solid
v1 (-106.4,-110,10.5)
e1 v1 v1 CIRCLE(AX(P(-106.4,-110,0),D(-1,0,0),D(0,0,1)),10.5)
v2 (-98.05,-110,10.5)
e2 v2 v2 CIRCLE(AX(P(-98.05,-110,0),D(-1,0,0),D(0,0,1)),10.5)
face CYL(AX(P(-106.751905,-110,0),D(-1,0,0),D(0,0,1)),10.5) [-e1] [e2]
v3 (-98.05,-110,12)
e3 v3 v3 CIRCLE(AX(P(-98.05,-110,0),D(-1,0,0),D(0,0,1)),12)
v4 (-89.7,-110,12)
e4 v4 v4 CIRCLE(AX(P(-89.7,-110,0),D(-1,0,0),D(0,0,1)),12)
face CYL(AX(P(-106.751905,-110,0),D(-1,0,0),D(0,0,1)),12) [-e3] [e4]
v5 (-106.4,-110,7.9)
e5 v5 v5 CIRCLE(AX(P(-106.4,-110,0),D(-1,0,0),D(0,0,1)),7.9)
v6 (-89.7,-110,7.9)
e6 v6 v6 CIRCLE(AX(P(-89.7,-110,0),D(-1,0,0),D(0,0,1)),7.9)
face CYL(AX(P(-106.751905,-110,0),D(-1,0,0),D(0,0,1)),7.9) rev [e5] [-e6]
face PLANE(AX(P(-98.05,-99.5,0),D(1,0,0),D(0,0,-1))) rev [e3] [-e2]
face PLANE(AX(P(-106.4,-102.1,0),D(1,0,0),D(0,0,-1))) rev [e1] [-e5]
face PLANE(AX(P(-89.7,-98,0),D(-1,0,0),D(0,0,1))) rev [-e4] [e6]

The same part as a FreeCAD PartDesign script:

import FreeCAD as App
import Part
import Sketcher
from FreeCAD import Vector


def add_polygon(sketch, points):
    """Adds a closed chain of lines whose ends are joined by coincident constraints."""
    first, n = sketch.GeometryCount, len(points)
    for a, b in zip(points, points[1:] + points[:1]):
        sketch.addGeometry(Part.LineSegment(App.Vector(*a, 0), App.Vector(*b, 0)), False)
    for i in range(n):
        sketch.addConstraint(Sketcher.Constraint("Coincident", first + i, 2, first + (i + 1) % n, 1))

doc = App.newDocument("Part")
body = doc.addObject("PartDesign::Body", "Body")

# Sketch on XY plane
sketch1 = body.newObject("Sketcher::SketchObject", "Sketch")
sketch1.AttachmentSupport = (doc.getObject("XY_Plane"), [""])
sketch1.MapMode = "FlatFace"
add_polygon(sketch1, [(-89.7, -98), (-98.05, -98), (-98.05, -99.5), (-106.4, -99.5), (-106.4, -102.1), (-89.7, -102.1)])  # lines 0-5
sketch1.addGeometry(Part.LineSegment(Vector(-106.4, -110, 0), Vector(-89.7, -110, 0)), True)  # axis
sketch1.addConstraint([
    Sketcher.Constraint("Horizontal", 0),
    Sketcher.Constraint("Vertical", 1),
    Sketcher.Constraint("Horizontal", 2),
    Sketcher.Constraint("Vertical", 3),
    Sketcher.Constraint("Horizontal", 4),
    Sketcher.Constraint("Vertical", 5),
    Sketcher.Constraint("Horizontal", 6),
    Sketcher.Constraint("Vertical", 3, 2, 6, 1),
    Sketcher.Constraint("Vertical", 5, 2, 6, 2),
    Sketcher.Constraint("Equal", 0, 2),
    Sketcher.Constraint("DistanceX", 4, 1, 4, 2, 16.7),
    Sketcher.Constraint("DistanceY", 1, 2, 1, 1, 1.5),
    Sketcher.Constraint("DistanceY", 3, 2, 3, 1, 2.6),
    Sketcher.Constraint("DistanceY", 0, 2, -1, 1, 98.0),
    Sketcher.Constraint("DistanceY", 6, 1, -1, 1, 110.0),
    Sketcher.Constraint("DistanceX", 2, 2, -1, 1, 106.4),
])
revolution = body.newObject("PartDesign::Revolution", "Revolution")
revolution.Profile = sketch1
revolution.ReferenceAxis = (sketch1, ["Axis0"])
revolution.Angle = 360

doc.recompute()
